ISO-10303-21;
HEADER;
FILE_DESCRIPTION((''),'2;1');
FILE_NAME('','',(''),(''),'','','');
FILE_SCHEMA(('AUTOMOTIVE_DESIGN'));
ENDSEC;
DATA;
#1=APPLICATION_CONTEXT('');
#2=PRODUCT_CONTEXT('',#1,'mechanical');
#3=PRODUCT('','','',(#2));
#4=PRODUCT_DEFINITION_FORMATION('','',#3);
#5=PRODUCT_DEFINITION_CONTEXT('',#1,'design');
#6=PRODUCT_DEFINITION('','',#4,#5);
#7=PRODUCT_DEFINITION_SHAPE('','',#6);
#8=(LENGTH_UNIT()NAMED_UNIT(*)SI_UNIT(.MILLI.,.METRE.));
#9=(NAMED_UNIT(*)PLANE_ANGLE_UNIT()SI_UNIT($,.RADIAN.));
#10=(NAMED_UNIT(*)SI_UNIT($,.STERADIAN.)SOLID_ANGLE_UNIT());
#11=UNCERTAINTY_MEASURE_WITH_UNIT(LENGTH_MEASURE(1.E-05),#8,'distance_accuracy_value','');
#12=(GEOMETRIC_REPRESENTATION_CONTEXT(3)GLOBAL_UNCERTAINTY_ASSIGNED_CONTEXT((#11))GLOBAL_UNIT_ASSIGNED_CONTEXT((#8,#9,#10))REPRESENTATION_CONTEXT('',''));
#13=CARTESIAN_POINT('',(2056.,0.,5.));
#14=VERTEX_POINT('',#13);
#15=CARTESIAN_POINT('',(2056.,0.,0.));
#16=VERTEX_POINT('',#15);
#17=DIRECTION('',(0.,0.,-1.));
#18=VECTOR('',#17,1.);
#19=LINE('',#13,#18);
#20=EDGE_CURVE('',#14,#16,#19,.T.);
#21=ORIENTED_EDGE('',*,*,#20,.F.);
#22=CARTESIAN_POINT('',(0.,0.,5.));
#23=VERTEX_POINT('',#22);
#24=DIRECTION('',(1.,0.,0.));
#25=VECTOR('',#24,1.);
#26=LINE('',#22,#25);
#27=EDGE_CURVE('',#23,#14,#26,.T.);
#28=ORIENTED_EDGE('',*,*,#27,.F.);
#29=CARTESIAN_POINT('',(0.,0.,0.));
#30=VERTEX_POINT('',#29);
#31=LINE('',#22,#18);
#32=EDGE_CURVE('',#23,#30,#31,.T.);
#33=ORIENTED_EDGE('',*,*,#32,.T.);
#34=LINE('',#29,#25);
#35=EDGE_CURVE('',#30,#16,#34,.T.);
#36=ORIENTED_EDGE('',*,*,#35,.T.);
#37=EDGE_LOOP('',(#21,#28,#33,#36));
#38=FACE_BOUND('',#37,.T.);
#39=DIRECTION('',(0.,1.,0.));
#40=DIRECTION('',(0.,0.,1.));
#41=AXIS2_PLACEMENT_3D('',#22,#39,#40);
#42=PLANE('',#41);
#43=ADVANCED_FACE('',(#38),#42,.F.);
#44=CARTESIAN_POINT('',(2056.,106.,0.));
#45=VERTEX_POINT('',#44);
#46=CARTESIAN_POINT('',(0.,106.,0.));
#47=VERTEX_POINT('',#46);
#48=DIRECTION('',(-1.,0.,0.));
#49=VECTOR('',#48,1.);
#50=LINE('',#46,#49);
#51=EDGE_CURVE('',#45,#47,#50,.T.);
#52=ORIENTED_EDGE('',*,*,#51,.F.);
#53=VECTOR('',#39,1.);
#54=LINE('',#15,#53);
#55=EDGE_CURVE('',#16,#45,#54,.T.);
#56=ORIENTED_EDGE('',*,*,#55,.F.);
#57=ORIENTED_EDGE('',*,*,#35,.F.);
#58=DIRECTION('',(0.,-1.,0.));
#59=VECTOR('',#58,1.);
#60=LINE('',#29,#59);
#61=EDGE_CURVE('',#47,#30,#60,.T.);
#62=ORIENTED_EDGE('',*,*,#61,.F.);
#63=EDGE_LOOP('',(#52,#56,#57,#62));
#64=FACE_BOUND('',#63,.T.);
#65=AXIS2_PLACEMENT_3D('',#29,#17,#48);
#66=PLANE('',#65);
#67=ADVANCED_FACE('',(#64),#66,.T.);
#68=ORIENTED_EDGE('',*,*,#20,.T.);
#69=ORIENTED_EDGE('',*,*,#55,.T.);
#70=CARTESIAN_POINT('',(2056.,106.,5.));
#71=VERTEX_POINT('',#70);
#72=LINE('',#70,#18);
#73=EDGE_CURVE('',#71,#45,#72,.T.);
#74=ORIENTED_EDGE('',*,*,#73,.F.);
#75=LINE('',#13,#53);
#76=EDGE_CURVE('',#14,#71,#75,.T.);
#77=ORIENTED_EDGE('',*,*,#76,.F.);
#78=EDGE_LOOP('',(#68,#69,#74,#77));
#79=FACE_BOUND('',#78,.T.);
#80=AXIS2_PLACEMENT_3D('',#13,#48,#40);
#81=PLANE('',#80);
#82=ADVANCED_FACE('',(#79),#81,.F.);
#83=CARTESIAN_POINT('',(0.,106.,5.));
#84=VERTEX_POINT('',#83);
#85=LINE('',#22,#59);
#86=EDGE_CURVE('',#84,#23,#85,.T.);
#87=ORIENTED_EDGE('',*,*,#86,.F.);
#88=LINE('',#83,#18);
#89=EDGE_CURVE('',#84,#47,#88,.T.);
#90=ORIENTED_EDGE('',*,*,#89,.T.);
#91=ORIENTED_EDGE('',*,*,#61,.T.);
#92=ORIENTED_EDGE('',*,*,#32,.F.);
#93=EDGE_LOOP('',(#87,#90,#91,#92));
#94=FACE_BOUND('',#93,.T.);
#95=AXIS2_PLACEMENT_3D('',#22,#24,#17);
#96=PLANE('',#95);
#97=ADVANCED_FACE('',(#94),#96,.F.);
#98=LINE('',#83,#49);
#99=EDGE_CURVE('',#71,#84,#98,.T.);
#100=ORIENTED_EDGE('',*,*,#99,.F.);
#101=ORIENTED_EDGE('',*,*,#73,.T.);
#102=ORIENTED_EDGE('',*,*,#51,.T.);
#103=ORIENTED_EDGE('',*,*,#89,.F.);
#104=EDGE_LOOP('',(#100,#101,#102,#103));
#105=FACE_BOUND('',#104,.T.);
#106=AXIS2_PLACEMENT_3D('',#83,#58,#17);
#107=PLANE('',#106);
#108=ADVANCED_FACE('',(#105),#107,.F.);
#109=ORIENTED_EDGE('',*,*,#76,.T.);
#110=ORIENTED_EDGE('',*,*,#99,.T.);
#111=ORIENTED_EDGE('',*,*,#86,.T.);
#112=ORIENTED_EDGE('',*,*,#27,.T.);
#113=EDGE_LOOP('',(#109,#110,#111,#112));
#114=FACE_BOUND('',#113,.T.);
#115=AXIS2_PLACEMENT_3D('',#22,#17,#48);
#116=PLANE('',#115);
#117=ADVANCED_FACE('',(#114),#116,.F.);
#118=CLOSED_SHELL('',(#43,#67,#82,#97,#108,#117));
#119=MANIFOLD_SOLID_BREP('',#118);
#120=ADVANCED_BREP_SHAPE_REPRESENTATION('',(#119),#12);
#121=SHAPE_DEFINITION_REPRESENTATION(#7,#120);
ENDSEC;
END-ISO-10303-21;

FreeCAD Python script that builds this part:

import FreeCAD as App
import Part
import Sketcher
from FreeCAD import Vector


def add_polygon(sketch, points):
    """Adds a closed chain of lines whose ends are joined by coincident constraints."""
    first, n = sketch.GeometryCount, len(points)
    for a, b in zip(points, points[1:] + points[:1]):
        sketch.addGeometry(Part.LineSegment(App.Vector(*a, 0), App.Vector(*b, 0)), False)
    for i in range(n):
        sketch.addConstraint(Sketcher.Constraint("Coincident", first + i, 2, first + (i + 1) % n, 1))

doc = App.newDocument("Part")
body = doc.addObject("PartDesign::Body", "Body")

sketch1 = body.newObject("Sketcher::SketchObject", "Sketch")
sketch1.AttachmentSupport = (doc.getObject("XY_Plane"), [""])
sketch1.MapMode = "FlatFace"
add_polygon(sketch1, [(0, 106), (0, 0), (2056, 0), (2056, 106)])
sketch1.addConstraint(Sketcher.Constraint("Vertical", 0))
sketch1.addConstraint(Sketcher.Constraint("Horizontal", 1))
sketch1.addConstraint(Sketcher.Constraint("Vertical", 2))
sketch1.addConstraint(Sketcher.Constraint("Horizontal", 3))
sketch1.addConstraint(Sketcher.Constraint("Coincident", 0, 2, -1, 1))
sketch1.addConstraint(Sketcher.Constraint("DistanceX", 1, 1, 1, 2, 2056.0))
sketch1.addConstraint(Sketcher.Constraint("DistanceY", 0, 2, 0, 1, 106.0))
pad1 = body.newObject("PartDesign::Pad", "Pad")
pad1.Profile = sketch1
pad1.Length = 5

doc.recompute()
